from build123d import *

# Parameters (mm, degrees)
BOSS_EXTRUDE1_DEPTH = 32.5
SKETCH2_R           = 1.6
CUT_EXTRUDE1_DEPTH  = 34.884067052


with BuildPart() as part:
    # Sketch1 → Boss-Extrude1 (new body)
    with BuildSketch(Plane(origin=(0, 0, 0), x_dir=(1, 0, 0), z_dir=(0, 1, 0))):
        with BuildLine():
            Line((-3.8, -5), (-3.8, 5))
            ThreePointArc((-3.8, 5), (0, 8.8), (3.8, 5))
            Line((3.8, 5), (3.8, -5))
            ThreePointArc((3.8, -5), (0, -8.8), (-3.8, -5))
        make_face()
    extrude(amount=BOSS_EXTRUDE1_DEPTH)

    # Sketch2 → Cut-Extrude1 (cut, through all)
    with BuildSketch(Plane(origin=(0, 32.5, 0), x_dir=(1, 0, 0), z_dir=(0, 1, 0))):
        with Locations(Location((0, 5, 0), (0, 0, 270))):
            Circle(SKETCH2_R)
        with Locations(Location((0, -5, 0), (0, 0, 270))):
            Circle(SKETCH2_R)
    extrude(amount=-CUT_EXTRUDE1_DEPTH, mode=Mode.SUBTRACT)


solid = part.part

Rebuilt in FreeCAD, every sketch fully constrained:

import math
import FreeCAD as App
import Part
import Sketcher
from FreeCAD import Vector

doc = App.newDocument("Part")
body = doc.addObject("PartDesign::Body", "Body")

sketch1 = body.newObject("Sketcher::SketchObject", "Sketch")
sketch1.AttachmentSupport = (doc.getObject("XZ_Plane"), [""])
sketch1.MapMode = "FlatFace"
sketch1.addGeometry([
    Part.LineSegment(Vector(-3.8, -5, 0), Vector(-3.8, 5, 0)),
    Part.ArcOfCircle(Part.Circle(Vector(0, 5, 0), Vector(0, 0, 1), 3.8), math.radians(0), math.radians(180)),
    Part.LineSegment(Vector(3.8, 5, 0), Vector(3.8, -5, 0)),
    Part.ArcOfCircle(Part.Circle(Vector(0, -5, 0), Vector(0, 0, 1), 3.8), math.radians(180), math.radians(360)),
], False)
sketch1.addConstraint([
    Sketcher.Constraint("Tangent", 0, 2, 1, 2),
    Sketcher.Constraint("Tangent", 1, 1, 2, 1),
    Sketcher.Constraint("Tangent", 2, 2, 3, 2),
    Sketcher.Constraint("Tangent", 3, 1, 0, 1),
    Sketcher.Constraint("Vertical", 0),
    Sketcher.Constraint("Vertical", 2),
    Sketcher.Constraint("Symmetric", 1, 3, 3, 3, -1, 1),
    Sketcher.Constraint("Radius", 1, 3.8),
    Sketcher.Constraint("DistanceY", 0, 1, 0, 2, 10.0),
])
pad1 = body.newObject("PartDesign::Pad", "Pad")
pad1.Profile = sketch1
pad1.Length = 32.5
pad1.Reversed = True

sketch2 = body.newObject("Sketcher::SketchObject", "Sketch001")
sketch2.AttachmentSupport = (doc.getObject("XZ_Plane"), [""])
sketch2.MapMode = "FlatFace"
sketch2.AttachmentOffset = App.Placement(Vector(0, 0, -32.5), App.Rotation())
sketch2.addGeometry([
    Part.Circle(Vector(0, -5, 0), Vector(0, 0, 1), 1.6),
    Part.Circle(Vector(0, 5, 0), Vector(0, 0, 1), 1.6),
], False)
sketch2.addConstraint([
    Sketcher.Constraint("Equal", 0, 1),
    Sketcher.Constraint("Symmetric", 0, 3, 1, 3, -1, 1),
    Sketcher.Constraint("PointOnObject", 0, 3, -2),
    Sketcher.Constraint("Diameter", 0, 3.2),
    Sketcher.Constraint("DistanceY", 0, 3, -1, 1, 5.0),
])
pocket1 = body.newObject("PartDesign::Pocket", "Pocket")
pocket1.Profile = sketch2
pocket1.Type = "ThroughAll"
pocket1.Reversed = True

doc.recompute()
